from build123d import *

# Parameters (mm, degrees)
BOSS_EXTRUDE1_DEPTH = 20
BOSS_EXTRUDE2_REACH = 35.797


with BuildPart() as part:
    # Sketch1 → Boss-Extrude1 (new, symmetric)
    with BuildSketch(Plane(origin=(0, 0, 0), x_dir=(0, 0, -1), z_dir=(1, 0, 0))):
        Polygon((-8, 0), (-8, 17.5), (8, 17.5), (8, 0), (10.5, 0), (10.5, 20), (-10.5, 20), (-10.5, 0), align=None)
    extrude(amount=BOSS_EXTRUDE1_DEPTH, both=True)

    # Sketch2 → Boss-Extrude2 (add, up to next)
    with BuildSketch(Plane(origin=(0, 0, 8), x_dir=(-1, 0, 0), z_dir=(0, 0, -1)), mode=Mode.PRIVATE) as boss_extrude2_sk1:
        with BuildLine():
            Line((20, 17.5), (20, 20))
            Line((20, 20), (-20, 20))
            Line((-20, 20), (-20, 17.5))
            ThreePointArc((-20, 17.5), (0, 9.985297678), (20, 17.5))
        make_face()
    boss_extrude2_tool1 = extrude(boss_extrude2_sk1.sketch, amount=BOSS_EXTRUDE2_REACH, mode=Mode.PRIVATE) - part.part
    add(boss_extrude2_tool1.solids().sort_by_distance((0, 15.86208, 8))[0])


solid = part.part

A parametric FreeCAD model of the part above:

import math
import FreeCAD as App
import Part
import Sketcher


def add_polygon(sketch, points):
    """Adds a closed chain of lines whose ends are joined by coincident constraints."""
    first, n = sketch.GeometryCount, len(points)
    for a, b in zip(points, points[1:] + points[:1]):
        sketch.addGeometry(Part.LineSegment(App.Vector(*a, 0), App.Vector(*b, 0)), False)
    for i in range(n):
        sketch.addConstraint(Sketcher.Constraint("Coincident", first + i, 2, first + (i + 1) % n, 1))

doc = App.newDocument("Part")
body = doc.addObject("PartDesign::Body", "Body")

# Sketch on YZ plane
sketch1 = body.newObject("Sketcher::SketchObject", "Sketch")
sketch1.AttachmentSupport = (doc.getObject("YZ_Plane"), [""])
sketch1.MapMode = "FlatFace"
add_polygon(sketch1, [(0, 8), (17.5, 8), (17.5, -8), (0, -8), (0, -10.5), (20, -10.5), (20, 10.5), (0, 10.5)])  # lines 0-7
sketch1.addConstraint([
    Sketcher.Constraint("Horizontal", 0),
    Sketcher.Constraint("Vertical", 1),
    Sketcher.Constraint("Horizontal", 2),
    Sketcher.Constraint("Vertical", 3),
    Sketcher.Constraint("Horizontal", 4),
    Sketcher.Constraint("Vertical", 5),
    Sketcher.Constraint("Horizontal", 6),
    Sketcher.Constraint("Vertical", 7),
    Sketcher.Constraint("Symmetric", 3, 2, 6, 2, -1, 1),
    Sketcher.Constraint("Symmetric", 2, 2, 7, 2, -1),
    Sketcher.Constraint("DistanceX", 4, 1, 4, 2, 20.0),
    Sketcher.Constraint("DistanceY", 1, 2, 1, 1, 16.0),
    Sketcher.Constraint("DistanceY", 5, 1, 5, 2, 21.0),
    Sketcher.Constraint("DistanceX", 0, 1, 0, 2, 17.5),
])
pad1 = body.newObject("PartDesign::Pad", "Pad")
pad1.Profile = sketch1
pad1.Length = 40
pad1.Midplane = True

# Sketch on XY plane
sketch2 = body.newObject("Sketcher::SketchObject", "Sketch001")
sketch2.AttachmentSupport = (doc.getObject("XY_Plane"), [""])
sketch2.MapMode = "FlatFace"
sketch2.AttachmentOffset = App.Placement(App.Vector(0, 0, 8), App.Rotation())
sketch2.addGeometry([
    Part.LineSegment(App.Vector(-20, 17.5, 0), App.Vector(-20, 20, 0)),
    Part.LineSegment(App.Vector(-20, 20, 0), App.Vector(20, 20, 0)),
    Part.LineSegment(App.Vector(20, 20, 0), App.Vector(20, 17.5, 0)),
    Part.ArcOfCircle(Part.Circle(App.Vector(0, 40.357143, 0), App.Vector(0, 0, 1), 30.371845), math.radians(-131.185925), math.radians(-48.814075)),
], False)
sketch2.addConstraint([
    Sketcher.Constraint("Coincident", 0, 2, 1, 1),
    Sketcher.Constraint("Coincident", 1, 2, 2, 1),
    Sketcher.Constraint("Coincident", 2, 2, 3, 2),
    Sketcher.Constraint("Coincident", 3, 1, 0, 1),
    Sketcher.Constraint("Vertical", 0),
    Sketcher.Constraint("Horizontal", 1),
    Sketcher.Constraint("Vertical", 2),
    Sketcher.Constraint("Symmetric", 2, 2, 3, 1, -2),
    Sketcher.Constraint("DistanceX", 1, 1, 1, 2, 40.0),
    Sketcher.Constraint("DistanceY", 0, 1, 0, 2, 2.5),
    Sketcher.Constraint("DistanceY", -1, 1, 0, 2, 20.0),
    Sketcher.Constraint("Radius", 3, 30.371845),
])
pad2 = body.newObject("PartDesign::Pad", "Pad001")
pad2.Profile = sketch2
pad2.Type = "UpToFirst"
pad2.Reversed = True

doc.recompute()
